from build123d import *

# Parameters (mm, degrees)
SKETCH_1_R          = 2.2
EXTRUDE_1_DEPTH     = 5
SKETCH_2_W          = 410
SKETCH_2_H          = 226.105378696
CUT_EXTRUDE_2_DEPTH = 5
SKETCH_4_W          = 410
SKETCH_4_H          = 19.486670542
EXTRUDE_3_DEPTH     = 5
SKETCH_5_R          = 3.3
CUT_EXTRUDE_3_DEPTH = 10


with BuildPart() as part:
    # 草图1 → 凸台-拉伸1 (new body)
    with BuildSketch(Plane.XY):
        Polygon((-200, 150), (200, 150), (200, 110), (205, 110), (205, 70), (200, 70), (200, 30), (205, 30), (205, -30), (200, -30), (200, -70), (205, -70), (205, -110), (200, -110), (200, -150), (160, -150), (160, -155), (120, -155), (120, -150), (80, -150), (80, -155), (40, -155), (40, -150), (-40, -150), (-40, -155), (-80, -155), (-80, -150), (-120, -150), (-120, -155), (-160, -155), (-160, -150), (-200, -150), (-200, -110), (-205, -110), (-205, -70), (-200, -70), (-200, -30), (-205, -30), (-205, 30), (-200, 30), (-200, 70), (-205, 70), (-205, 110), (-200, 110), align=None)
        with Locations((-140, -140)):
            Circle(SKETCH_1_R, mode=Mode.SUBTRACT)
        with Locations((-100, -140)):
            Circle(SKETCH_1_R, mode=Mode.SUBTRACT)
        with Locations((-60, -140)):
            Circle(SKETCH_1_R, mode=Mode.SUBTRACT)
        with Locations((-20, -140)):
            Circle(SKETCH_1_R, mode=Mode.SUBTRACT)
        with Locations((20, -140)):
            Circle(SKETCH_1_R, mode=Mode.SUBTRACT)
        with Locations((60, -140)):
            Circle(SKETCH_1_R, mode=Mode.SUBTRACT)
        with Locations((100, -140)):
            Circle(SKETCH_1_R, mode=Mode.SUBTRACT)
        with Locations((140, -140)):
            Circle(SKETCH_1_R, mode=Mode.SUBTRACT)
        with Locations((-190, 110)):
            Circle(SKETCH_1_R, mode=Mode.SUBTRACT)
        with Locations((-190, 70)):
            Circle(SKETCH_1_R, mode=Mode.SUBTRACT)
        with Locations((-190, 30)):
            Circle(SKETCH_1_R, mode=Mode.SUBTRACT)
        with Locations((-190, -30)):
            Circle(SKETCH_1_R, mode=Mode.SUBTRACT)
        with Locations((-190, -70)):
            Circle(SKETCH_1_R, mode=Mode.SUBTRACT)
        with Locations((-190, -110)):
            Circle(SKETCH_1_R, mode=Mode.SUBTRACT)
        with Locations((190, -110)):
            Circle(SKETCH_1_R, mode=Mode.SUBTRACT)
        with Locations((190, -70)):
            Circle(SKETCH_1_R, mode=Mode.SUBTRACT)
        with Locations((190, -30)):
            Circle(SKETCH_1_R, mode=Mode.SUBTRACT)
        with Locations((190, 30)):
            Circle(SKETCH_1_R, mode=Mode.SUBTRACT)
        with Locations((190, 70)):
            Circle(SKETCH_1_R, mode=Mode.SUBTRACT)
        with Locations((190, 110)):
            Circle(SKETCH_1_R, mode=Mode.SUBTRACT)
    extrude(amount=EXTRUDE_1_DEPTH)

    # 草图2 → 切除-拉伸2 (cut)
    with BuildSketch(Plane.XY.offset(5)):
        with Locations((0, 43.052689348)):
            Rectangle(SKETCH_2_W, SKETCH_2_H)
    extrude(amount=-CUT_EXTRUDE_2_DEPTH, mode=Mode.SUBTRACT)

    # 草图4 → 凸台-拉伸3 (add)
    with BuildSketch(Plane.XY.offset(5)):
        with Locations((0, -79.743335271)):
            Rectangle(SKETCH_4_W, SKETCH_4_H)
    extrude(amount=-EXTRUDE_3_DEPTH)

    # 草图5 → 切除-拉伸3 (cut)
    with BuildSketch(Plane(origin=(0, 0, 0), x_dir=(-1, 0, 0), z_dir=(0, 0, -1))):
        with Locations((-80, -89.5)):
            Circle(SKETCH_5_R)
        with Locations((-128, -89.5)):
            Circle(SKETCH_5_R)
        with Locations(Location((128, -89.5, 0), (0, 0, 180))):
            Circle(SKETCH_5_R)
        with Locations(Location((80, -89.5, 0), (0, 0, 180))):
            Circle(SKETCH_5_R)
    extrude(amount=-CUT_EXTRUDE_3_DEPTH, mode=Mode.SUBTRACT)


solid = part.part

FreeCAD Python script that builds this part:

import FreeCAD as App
import Part
import Sketcher


def add_polygon(sketch, points):
    """Adds a closed chain of lines whose ends are joined by coincident constraints."""
    first, n = sketch.GeometryCount, len(points)
    for a, b in zip(points, points[1:] + points[:1]):
        sketch.addGeometry(Part.LineSegment(App.Vector(*a, 0), App.Vector(*b, 0)), False)
    for i in range(n):
        sketch.addConstraint(Sketcher.Constraint("Coincident", first + i, 2, first + (i + 1) % n, 1))

doc = App.newDocument("Part")
params = doc.addObject("Spreadsheet::Sheet", "Params")
for row, (alias, value) in enumerate([
    ("sketch1_diameter", "4.4 mm"),
    ("sketch1_width", "400 mm"),
    ("sketch1_width2", "5 mm"),
    ("sketch1_width3", "40 mm"),
    ("sketch1_height", "60 mm"),
    ("pad1_length", "5 mm"),
    ("sketch2_width", "410 mm"),
    ("pocket1_length", "5 mm"),
    ("sketch3_width", "410 mm"),
    ("pad2_length", "5 mm"),
    ("sketch4_diameter", "6.6 mm"),
    ("pocket2_length", "10 mm"),
], start=1):
    params.set(f"A{row}", alias)
    params.set(f"B{row}", "=" + value)
    params.setAlias(f"B{row}", alias)

body = doc.addObject("PartDesign::Body", "Body")

sketch1 = doc.addObject("Sketcher::SketchObject", "Sketch")
body.addObject(sketch1)
sketch1.AttachmentSupport = (doc.XY_Plane, [""])
sketch1.MapMode = "FlatFace"
add_polygon(sketch1, [(200, 150), (-200, 150), (-200, 110), (-205, 110), (-205, 70), (-200, 70), (-200, 30), (-205, 30), (-205, -30), (-200, -30), (-200, -70), (-205, -70), (-205, -110), (-200, -110), (-200, -150), (-160, -150), (-160, -155), (-120, -155), (-120, -150), (-80, -150), (-80, -155), (-40, -155), (-40, -150), (40, -150), (40, -155), (80, -155), (80, -150), (120, -150), (120, -155), (160, -155), (160, -150), (200, -150), (200, -110), (205, -110), (205, -70), (200, -70), (200, -30), (205, -30), (205, 30), (200, 30), (200, 70), (205, 70), (205, 110), (200, 110)])
sketch1.addGeometry(Part.Circle(App.Vector(140, -140, 0), App.Vector(0, 0, 1), 2.2), False)
sketch1.addGeometry(Part.Circle(App.Vector(100, -140, 0), App.Vector(0, 0, 1), 2.2), False)
sketch1.addGeometry(Part.Circle(App.Vector(190, -110, 0), App.Vector(0, 0, 1), 2.2), False)
sketch1.addGeometry(Part.Circle(App.Vector(60, -140, 0), App.Vector(0, 0, 1), 2.2), False)
sketch1.addGeometry(Part.Circle(App.Vector(20, -140, 0), App.Vector(0, 0, 1), 2.2), False)
sketch1.addGeometry(Part.Circle(App.Vector(190, -70, 0), App.Vector(0, 0, 1), 2.2), False)
sketch1.addGeometry(Part.Circle(App.Vector(190, -30, 0), App.Vector(0, 0, 1), 2.2), False)
sketch1.addGeometry(Part.Circle(App.Vector(-20, -140, 0), App.Vector(0, 0, 1), 2.2), False)
sketch1.addGeometry(Part.Circle(App.Vector(-60, -140, 0), App.Vector(0, 0, 1), 2.2), False)
sketch1.addGeometry(Part.Circle(App.Vector(-100, -140, 0), App.Vector(0, 0, 1), 2.2), False)
sketch1.addGeometry(Part.Circle(App.Vector(-140, -140, 0), App.Vector(0, 0, 1), 2.2), False)
sketch1.addGeometry(Part.Circle(App.Vector(-190, -110, 0), App.Vector(0, 0, 1), 2.2), False)
sketch1.addGeometry(Part.Circle(App.Vector(-190, -70, 0), App.Vector(0, 0, 1), 2.2), False)
sketch1.addGeometry(Part.Circle(App.Vector(-190, -30, 0), App.Vector(0, 0, 1), 2.2), False)
sketch1.addGeometry(Part.Circle(App.Vector(190, 30, 0), App.Vector(0, 0, 1), 2.2), False)
sketch1.addGeometry(Part.Circle(App.Vector(190, 70, 0), App.Vector(0, 0, 1), 2.2), False)
sketch1.addGeometry(Part.Circle(App.Vector(190, 110, 0), App.Vector(0, 0, 1), 2.2), False)
sketch1.addGeometry(Part.Circle(App.Vector(-190, 30, 0), App.Vector(0, 0, 1), 2.2), False)
sketch1.addGeometry(Part.Circle(App.Vector(-190, 70, 0), App.Vector(0, 0, 1), 2.2), False)
sketch1.addGeometry(Part.Circle(App.Vector(-190, 110, 0), App.Vector(0, 0, 1), 2.2), False)
sketch1.addConstraint(Sketcher.Constraint("Horizontal", 0))
sketch1.addConstraint(Sketcher.Constraint("Vertical", 1))
sketch1.addConstraint(Sketcher.Constraint("Horizontal", 2))
sketch1.addConstraint(Sketcher.Constraint("Vertical", 3))
sketch1.addConstraint(Sketcher.Constraint("Horizontal", 4))
sketch1.addConstraint(Sketcher.Constraint("Vertical", 5))
sketch1.addConstraint(Sketcher.Constraint("Horizontal", 6))
sketch1.addConstraint(Sketcher.Constraint("Vertical", 7))
sketch1.addConstraint(Sketcher.Constraint("Horizontal", 8))
sketch1.addConstraint(Sketcher.Constraint("Vertical", 9))
sketch1.addConstraint(Sketcher.Constraint("Horizontal", 10))
sketch1.addConstraint(Sketcher.Constraint("Vertical", 11))
sketch1.addConstraint(Sketcher.Constraint("Horizontal", 12))
sketch1.addConstraint(Sketcher.Constraint("Vertical", 13))
sketch1.addConstraint(Sketcher.Constraint("Horizontal", 14))
sketch1.addConstraint(Sketcher.Constraint("Vertical", 15))
sketch1.addConstraint(Sketcher.Constraint("Horizontal", 16))
sketch1.addConstraint(Sketcher.Constraint("Vertical", 17))
sketch1.addConstraint(Sketcher.Constraint("Horizontal", 18))
sketch1.addConstraint(Sketcher.Constraint("Vertical", 19))
sketch1.addConstraint(Sketcher.Constraint("Horizontal", 20))
sketch1.addConstraint(Sketcher.Constraint("Vertical", 21))
sketch1.addConstraint(Sketcher.Constraint("Horizontal", 22))
sketch1.addConstraint(Sketcher.Constraint("Vertical", 23))
sketch1.addConstraint(Sketcher.Constraint("Horizontal", 24))
sketch1.addConstraint(Sketcher.Constraint("Vertical", 25))
sketch1.addConstraint(Sketcher.Constraint("Horizontal", 26))
sketch1.addConstraint(Sketcher.Constraint("Vertical", 27))
sketch1.addConstraint(Sketcher.Constraint("Horizontal", 28))
sketch1.addConstraint(Sketcher.Constraint("Vertical", 29))
sketch1.addConstraint(Sketcher.Constraint("Horizontal", 30))
sketch1.addConstraint(Sketcher.Constraint("Vertical", 31))
sketch1.addConstraint(Sketcher.Constraint("Horizontal", 32))
sketch1.addConstraint(Sketcher.Constraint("Vertical", 33))
sketch1.addConstraint(Sketcher.Constraint("Horizontal", 34))
sketch1.addConstraint(Sketcher.Constraint("Vertical", 35))
sketch1.addConstraint(Sketcher.Constraint("Horizontal", 36))
sketch1.addConstraint(Sketcher.Constraint("Vertical", 37))
sketch1.addConstraint(Sketcher.Constraint("Horizontal", 38))
sketch1.addConstraint(Sketcher.Constraint("Vertical", 39))
sketch1.addConstraint(Sketcher.Constraint("Horizontal", 40))
sketch1.addConstraint(Sketcher.Constraint("Vertical", 41))
sketch1.addConstraint(Sketcher.Constraint("Horizontal", 42))
sketch1.addConstraint(Sketcher.Constraint("Vertical", 43))
sketch1.addConstraint(Sketcher.Constraint("Equal", 44, 45))
sketch1.addConstraint(Sketcher.Constraint("Equal", 45, 46))
sketch1.addConstraint(Sketcher.Constraint("Equal", 46, 47))
sketch1.addConstraint(Sketcher.Constraint("Equal", 47, 48))
sketch1.addConstraint(Sketcher.Constraint("Equal", 48, 49))
sketch1.addConstraint(Sketcher.Constraint("Equal", 49, 50))
sketch1.addConstraint(Sketcher.Constraint("Equal", 50, 51))
sketch1.addConstraint(Sketcher.Constraint("Equal", 51, 52))
sketch1.addConstraint(Sketcher.Constraint("Equal", 52, 53))
sketch1.addConstraint(Sketcher.Constraint("Equal", 53, 54))
sketch1.addConstraint(Sketcher.Constraint("Equal", 54, 55))
sketch1.addConstraint(Sketcher.Constraint("Equal", 55, 56))
sketch1.addConstraint(Sketcher.Constraint("Equal", 56, 57))
sketch1.addConstraint(Sketcher.Constraint("Equal", 57, 58))
sketch1.addConstraint(Sketcher.Constraint("Equal", 58, 59))
sketch1.addConstraint(Sketcher.Constraint("Equal", 59, 60))
sketch1.addConstraint(Sketcher.Constraint("Equal", 60, 61))
sketch1.addConstraint(Sketcher.Constraint("Equal", 61, 62))
sketch1.addConstraint(Sketcher.Constraint("Equal", 62, 63))
sketch1.addConstraint(Sketcher.Constraint("Symmetric", 57, 3, 58, 3, -1, 1))
sketch1.addConstraint(Sketcher.Constraint("Symmetric", 56, 3, 59, 3, -1, 1))
sketch1.addConstraint(Sketcher.Constraint("Symmetric", 55, 3, 60, 3, -1, 1))
sketch1.addConstraint(Sketcher.Constraint("Symmetric", 50, 3, 61, 3, -1, 1))
sketch1.addConstraint(Sketcher.Constraint("Symmetric", 49, 3, 62, 3, -1, 1))
sketch1.addConstraint(Sketcher.Constraint("Symmetric", 46, 3, 63, 3, -1, 1))
sketch1.addConstraint(Sketcher.Constraint("Symmetric", 0, 2, 30, 2, -1, 1))
sketch1.addConstraint(Sketcher.Constraint("Symmetric", 2, 2, 32, 2, -1, 1))
sketch1.addConstraint(Sketcher.Constraint("Symmetric", 4, 2, 34, 2, -1, 1))
sketch1.addConstraint(Sketcher.Constraint("Symmetric", 6, 2, 36, 2, -1, 1))
sketch1.addConstraint(Sketcher.Constraint("Symmetric", 8, 2, 38, 2, -1, 1))
sketch1.addConstraint(Sketcher.Constraint("Symmetric", 10, 2, 40, 2, -1, 1))
sketch1.addConstraint(Sketcher.Constraint("Symmetric", 12, 2, 42, 2, -1, 1))
sketch1.addConstraint(Sketcher.Constraint("Symmetric", 48, 3, 51, 3, -2))
sketch1.addConstraint(Sketcher.Constraint("Symmetric", 47, 3, 52, 3, -2))
sketch1.addConstraint(Sketcher.Constraint("Symmetric", 45, 3, 53, 3, -2))
sketch1.addConstraint(Sketcher.Constraint("Symmetric", 44, 3, 54, 3, -2))
sketch1.addConstraint(Sketcher.Constraint("Symmetric", 46, 3, 55, 3, -2))
sketch1.addConstraint(Sketcher.Constraint("Symmetric", 49, 3, 56, 3, -2))
sketch1.addConstraint(Sketcher.Constraint("Symmetric", 50, 3, 57, 3, -2))
sketch1.addConstraint(Sketcher.Constraint("Symmetric", 20, 2, 23, 2, -2))
sketch1.addConstraint(Sketcher.Constraint("Symmetric", 18, 2, 25, 2, -2))
sketch1.addConstraint(Sketcher.Constraint("Symmetric", 16, 2, 27, 2, -2))
sketch1.addConstraint(Sketcher.Constraint("Symmetric", 14, 2, 29, 2, -2))
sketch1.addConstraint(Sketcher.Constraint("Symmetric", 12, 2, 31, 2, -2))
sketch1.addConstraint(Sketcher.Constraint("Symmetric", 10, 2, 33, 2, -2))
sketch1.addConstraint(Sketcher.Constraint("Symmetric", 8, 2, 35, 2, -2))
sketch1.addConstraint(Sketcher.Constraint("Horizontal", 44, 3, 45, 3))
sketch1.addConstraint(Sketcher.Constraint("Horizontal", 45, 3, 47, 3))
sketch1.addConstraint(Sketcher.Constraint("Horizontal", 47, 3, 48, 3))
sketch1.addConstraint(Sketcher.Constraint("Horizontal", 63, 3, 1, 2))
sketch1.addConstraint(Sketcher.Constraint("Horizontal", 62, 3, 3, 2))
sketch1.addConstraint(Sketcher.Constraint("Horizontal", 61, 3, 5, 2))
sketch1.addConstraint(Sketcher.Constraint("Horizontal", 14, 2, 17, 2))
sketch1.addConstraint(Sketcher.Constraint("Horizontal", 16, 2, 19, 2))
sketch1.addConstraint(Sketcher.Constraint("Horizontal", 18, 2, 21, 2))
sketch1.addConstraint(Sketcher.Constraint("Vertical", 46, 3, 49, 3))
sketch1.addConstraint(Sketcher.Constraint("Vertical", 49, 3, 50, 3))
sketch1.addConstraint(Sketcher.Constraint("Vertical", 1, 2, 4, 2))
sketch1.addConstraint(Sketcher.Constraint("Vertical", 3, 2, 6, 2))
sketch1.addConstraint(Sketcher.Constraint("Equal", 14, 16))
sketch1.addConstraint(Sketcher.Constraint("Equal", 16, 18))
sketch1.addConstraint(Sketcher.Constraint("Equal", 18, 20))
sketch1.addConstraint(Sketcher.Constraint("Equal", 30, 1))
sketch1.addConstraint(Sketcher.Constraint("Equal", 1, 3))
sketch1.addConstraint(Sketcher.Constraint("Equal", 3, 5))
sketch1.addConstraint(Sketcher.Constraint("Equal", 42, 15))
sketch1.addConstraint(Sketcher.Constraint("Diameter", 44, 4.4))
sketch1.addConstraint(Sketcher.Constraint("DistanceX", 0, 2, 0, 1, 400.0))
sketch1.addConstraint(Sketcher.Constraint("DistanceX", 2, 2, 2, 1, 5.0))
sketch1.addConstraint(Sketcher.Constraint("DistanceX", 14, 1, 14, 2, 40.0))
sketch1.addConstraint(Sketcher.Constraint("DistanceY", 7, 2, 7, 1, 60.0))
sketch1.addConstraint(Sketcher.Constraint("DistanceX", -1, 1, 44, 3, 140.0))
sketch1.addConstraint(Sketcher.Constraint("DistanceY", 44, 3, -1, 1, 140.0))
sketch1.addConstraint(Sketcher.Constraint("DistanceX", -1, 1, 45, 3, 100.0))
sketch1.addConstraint(Sketcher.Constraint("DistanceX", -1, 1, 46, 3, 190.0))
sketch1.addConstraint(Sketcher.Constraint("DistanceX", -1, 1, 47, 3, 60.0))
sketch1.addConstraint(Sketcher.Constraint("DistanceX", -1, 1, 48, 3, 20.0))
sketch1.setExpression("Constraints[154]", "Params.sketch1_diameter")
sketch1.setExpression("Constraints[155]", "Params.sketch1_width")
sketch1.setExpression("Constraints[156]", "Params.sketch1_width2")
sketch1.setExpression("Constraints[157]", "Params.sketch1_width3")
sketch1.setExpression("Constraints[158]", "Params.sketch1_height")
pad1 = doc.addObject("PartDesign::Pad", "Pad")
body.addObject(pad1)
pad1.Profile = sketch1
pad1.setExpression("Length", "Params.pad1_length")

sketch2 = doc.addObject("Sketcher::SketchObject", "Sketch001")
body.addObject(sketch2)
sketch2.AttachmentSupport = (doc.XY_Plane, [""])
sketch2.MapMode = "FlatFace"
sketch2.AttachmentOffset = App.Placement(App.Vector(0, 0, 5), App.Rotation())
add_polygon(sketch2, [(-205, 156), (-205, -70), (205, -70), (205, 156)])
sketch2.addConstraint(Sketcher.Constraint("Vertical", 0))
sketch2.addConstraint(Sketcher.Constraint("Horizontal", 1))
sketch2.addConstraint(Sketcher.Constraint("Vertical", 2))
sketch2.addConstraint(Sketcher.Constraint("Horizontal", 3))
sketch2.addConstraint(Sketcher.Constraint("DistanceX", 1, 1, 1, 2, 410.0))
sketch2.addConstraint(Sketcher.Constraint("DistanceX", 0, 2, -1, 1, 205.0))
sketch2.addConstraint(Sketcher.Constraint("DistanceY", 0, 2, -1, 1, 70.0))
sketch2.addConstraint(Sketcher.Constraint("DistanceY", 0, 2, 0, 1, 226.105379))
sketch2.setExpression("Constraints[8]", "Params.sketch2_width")
pocket1 = doc.addObject("PartDesign::Pocket", "Pocket")
body.addObject(pocket1)
pocket1.Profile = sketch2
pocket1.setExpression("Length", "Params.pocket1_length")

sketch3 = doc.addObject("Sketcher::SketchObject", "Sketch002")
body.addObject(sketch3)
sketch3.AttachmentSupport = (doc.XY_Plane, [""])
sketch3.MapMode = "FlatFace"
sketch3.AttachmentOffset = App.Placement(App.Vector(0, 0, 5), App.Rotation())
add_polygon(sketch3, [(-205, -70), (-205, -89), (205, -89), (205, -70)])
sketch3.addConstraint(Sketcher.Constraint("Vertical", 0))
sketch3.addConstraint(Sketcher.Constraint("Horizontal", 1))
sketch3.addConstraint(Sketcher.Constraint("Vertical", 2))
sketch3.addConstraint(Sketcher.Constraint("Horizontal", 3))
sketch3.addConstraint(Sketcher.Constraint("DistanceX", 1, 1, 1, 2, 410.0))
sketch3.addConstraint(Sketcher.Constraint("DistanceX", 0, 2, -1, 1, 205.0))
sketch3.addConstraint(Sketcher.Constraint("DistanceY", 2, 2, -1, 1, 70.0))
sketch3.addConstraint(Sketcher.Constraint("DistanceY", 0, 2, 0, 1, 19.486671))
sketch3.setExpression("Constraints[8]", "Params.sketch3_width")
pad2 = doc.addObject("PartDesign::Pad", "Pad001")
body.addObject(pad2)
pad2.Profile = sketch3
pad2.setExpression("Length", "Params.pad2_length")
pad2.Reversed = True

sketch4 = doc.addObject("Sketcher::SketchObject", "Sketch003")
body.addObject(sketch4)
sketch4.AttachmentSupport = (doc.XY_Plane, [""])
sketch4.MapMode = "FlatFace"
sketch4.addGeometry(Part.Circle(App.Vector(80, -89.5, 0), App.Vector(0, 0, 1), 3.3), False)
sketch4.addGeometry(Part.Circle(App.Vector(128, -89.5, 0), App.Vector(0, 0, 1), 3.3), False)
sketch4.addGeometry(Part.Circle(App.Vector(-128, -89.5, 0), App.Vector(0, 0, 1), 3.3), False)
sketch4.addGeometry(Part.Circle(App.Vector(-80, -89.5, 0), App.Vector(0, 0, 1), 3.3), False)
sketch4.addConstraint(Sketcher.Constraint("Equal", 0, 1))
sketch4.addConstraint(Sketcher.Constraint("Equal", 1, 2))
sketch4.addConstraint(Sketcher.Constraint("Equal", 2, 3))
sketch4.addConstraint(Sketcher.Constraint("Symmetric", 1, 3, 2, 3, -2))
sketch4.addConstraint(Sketcher.Constraint("Symmetric", 0, 3, 3, 3, -2))
sketch4.addConstraint(Sketcher.Constraint("Horizontal", 0, 3, 1, 3))
sketch4.addConstraint(Sketcher.Constraint("Diameter", 0, 6.6))
sketch4.addConstraint(Sketcher.Constraint("DistanceX", -1, 1, 0, 3, 80.0))
sketch4.addConstraint(Sketcher.Constraint("DistanceX", -1, 1, 1, 3, 128.0))
sketch4.addConstraint(Sketcher.Constraint("DistanceY", 0, 3, -1, 1, 89.5))
sketch4.setExpression("Constraints[6]", "Params.sketch4_diameter")
pocket2 = doc.addObject("PartDesign::Pocket", "Pocket001")
body.addObject(pocket2)
pocket2.Profile = sketch4
pocket2.setExpression("Length", "Params.pocket2_length")
pocket2.Reversed = True

doc.recompute()
